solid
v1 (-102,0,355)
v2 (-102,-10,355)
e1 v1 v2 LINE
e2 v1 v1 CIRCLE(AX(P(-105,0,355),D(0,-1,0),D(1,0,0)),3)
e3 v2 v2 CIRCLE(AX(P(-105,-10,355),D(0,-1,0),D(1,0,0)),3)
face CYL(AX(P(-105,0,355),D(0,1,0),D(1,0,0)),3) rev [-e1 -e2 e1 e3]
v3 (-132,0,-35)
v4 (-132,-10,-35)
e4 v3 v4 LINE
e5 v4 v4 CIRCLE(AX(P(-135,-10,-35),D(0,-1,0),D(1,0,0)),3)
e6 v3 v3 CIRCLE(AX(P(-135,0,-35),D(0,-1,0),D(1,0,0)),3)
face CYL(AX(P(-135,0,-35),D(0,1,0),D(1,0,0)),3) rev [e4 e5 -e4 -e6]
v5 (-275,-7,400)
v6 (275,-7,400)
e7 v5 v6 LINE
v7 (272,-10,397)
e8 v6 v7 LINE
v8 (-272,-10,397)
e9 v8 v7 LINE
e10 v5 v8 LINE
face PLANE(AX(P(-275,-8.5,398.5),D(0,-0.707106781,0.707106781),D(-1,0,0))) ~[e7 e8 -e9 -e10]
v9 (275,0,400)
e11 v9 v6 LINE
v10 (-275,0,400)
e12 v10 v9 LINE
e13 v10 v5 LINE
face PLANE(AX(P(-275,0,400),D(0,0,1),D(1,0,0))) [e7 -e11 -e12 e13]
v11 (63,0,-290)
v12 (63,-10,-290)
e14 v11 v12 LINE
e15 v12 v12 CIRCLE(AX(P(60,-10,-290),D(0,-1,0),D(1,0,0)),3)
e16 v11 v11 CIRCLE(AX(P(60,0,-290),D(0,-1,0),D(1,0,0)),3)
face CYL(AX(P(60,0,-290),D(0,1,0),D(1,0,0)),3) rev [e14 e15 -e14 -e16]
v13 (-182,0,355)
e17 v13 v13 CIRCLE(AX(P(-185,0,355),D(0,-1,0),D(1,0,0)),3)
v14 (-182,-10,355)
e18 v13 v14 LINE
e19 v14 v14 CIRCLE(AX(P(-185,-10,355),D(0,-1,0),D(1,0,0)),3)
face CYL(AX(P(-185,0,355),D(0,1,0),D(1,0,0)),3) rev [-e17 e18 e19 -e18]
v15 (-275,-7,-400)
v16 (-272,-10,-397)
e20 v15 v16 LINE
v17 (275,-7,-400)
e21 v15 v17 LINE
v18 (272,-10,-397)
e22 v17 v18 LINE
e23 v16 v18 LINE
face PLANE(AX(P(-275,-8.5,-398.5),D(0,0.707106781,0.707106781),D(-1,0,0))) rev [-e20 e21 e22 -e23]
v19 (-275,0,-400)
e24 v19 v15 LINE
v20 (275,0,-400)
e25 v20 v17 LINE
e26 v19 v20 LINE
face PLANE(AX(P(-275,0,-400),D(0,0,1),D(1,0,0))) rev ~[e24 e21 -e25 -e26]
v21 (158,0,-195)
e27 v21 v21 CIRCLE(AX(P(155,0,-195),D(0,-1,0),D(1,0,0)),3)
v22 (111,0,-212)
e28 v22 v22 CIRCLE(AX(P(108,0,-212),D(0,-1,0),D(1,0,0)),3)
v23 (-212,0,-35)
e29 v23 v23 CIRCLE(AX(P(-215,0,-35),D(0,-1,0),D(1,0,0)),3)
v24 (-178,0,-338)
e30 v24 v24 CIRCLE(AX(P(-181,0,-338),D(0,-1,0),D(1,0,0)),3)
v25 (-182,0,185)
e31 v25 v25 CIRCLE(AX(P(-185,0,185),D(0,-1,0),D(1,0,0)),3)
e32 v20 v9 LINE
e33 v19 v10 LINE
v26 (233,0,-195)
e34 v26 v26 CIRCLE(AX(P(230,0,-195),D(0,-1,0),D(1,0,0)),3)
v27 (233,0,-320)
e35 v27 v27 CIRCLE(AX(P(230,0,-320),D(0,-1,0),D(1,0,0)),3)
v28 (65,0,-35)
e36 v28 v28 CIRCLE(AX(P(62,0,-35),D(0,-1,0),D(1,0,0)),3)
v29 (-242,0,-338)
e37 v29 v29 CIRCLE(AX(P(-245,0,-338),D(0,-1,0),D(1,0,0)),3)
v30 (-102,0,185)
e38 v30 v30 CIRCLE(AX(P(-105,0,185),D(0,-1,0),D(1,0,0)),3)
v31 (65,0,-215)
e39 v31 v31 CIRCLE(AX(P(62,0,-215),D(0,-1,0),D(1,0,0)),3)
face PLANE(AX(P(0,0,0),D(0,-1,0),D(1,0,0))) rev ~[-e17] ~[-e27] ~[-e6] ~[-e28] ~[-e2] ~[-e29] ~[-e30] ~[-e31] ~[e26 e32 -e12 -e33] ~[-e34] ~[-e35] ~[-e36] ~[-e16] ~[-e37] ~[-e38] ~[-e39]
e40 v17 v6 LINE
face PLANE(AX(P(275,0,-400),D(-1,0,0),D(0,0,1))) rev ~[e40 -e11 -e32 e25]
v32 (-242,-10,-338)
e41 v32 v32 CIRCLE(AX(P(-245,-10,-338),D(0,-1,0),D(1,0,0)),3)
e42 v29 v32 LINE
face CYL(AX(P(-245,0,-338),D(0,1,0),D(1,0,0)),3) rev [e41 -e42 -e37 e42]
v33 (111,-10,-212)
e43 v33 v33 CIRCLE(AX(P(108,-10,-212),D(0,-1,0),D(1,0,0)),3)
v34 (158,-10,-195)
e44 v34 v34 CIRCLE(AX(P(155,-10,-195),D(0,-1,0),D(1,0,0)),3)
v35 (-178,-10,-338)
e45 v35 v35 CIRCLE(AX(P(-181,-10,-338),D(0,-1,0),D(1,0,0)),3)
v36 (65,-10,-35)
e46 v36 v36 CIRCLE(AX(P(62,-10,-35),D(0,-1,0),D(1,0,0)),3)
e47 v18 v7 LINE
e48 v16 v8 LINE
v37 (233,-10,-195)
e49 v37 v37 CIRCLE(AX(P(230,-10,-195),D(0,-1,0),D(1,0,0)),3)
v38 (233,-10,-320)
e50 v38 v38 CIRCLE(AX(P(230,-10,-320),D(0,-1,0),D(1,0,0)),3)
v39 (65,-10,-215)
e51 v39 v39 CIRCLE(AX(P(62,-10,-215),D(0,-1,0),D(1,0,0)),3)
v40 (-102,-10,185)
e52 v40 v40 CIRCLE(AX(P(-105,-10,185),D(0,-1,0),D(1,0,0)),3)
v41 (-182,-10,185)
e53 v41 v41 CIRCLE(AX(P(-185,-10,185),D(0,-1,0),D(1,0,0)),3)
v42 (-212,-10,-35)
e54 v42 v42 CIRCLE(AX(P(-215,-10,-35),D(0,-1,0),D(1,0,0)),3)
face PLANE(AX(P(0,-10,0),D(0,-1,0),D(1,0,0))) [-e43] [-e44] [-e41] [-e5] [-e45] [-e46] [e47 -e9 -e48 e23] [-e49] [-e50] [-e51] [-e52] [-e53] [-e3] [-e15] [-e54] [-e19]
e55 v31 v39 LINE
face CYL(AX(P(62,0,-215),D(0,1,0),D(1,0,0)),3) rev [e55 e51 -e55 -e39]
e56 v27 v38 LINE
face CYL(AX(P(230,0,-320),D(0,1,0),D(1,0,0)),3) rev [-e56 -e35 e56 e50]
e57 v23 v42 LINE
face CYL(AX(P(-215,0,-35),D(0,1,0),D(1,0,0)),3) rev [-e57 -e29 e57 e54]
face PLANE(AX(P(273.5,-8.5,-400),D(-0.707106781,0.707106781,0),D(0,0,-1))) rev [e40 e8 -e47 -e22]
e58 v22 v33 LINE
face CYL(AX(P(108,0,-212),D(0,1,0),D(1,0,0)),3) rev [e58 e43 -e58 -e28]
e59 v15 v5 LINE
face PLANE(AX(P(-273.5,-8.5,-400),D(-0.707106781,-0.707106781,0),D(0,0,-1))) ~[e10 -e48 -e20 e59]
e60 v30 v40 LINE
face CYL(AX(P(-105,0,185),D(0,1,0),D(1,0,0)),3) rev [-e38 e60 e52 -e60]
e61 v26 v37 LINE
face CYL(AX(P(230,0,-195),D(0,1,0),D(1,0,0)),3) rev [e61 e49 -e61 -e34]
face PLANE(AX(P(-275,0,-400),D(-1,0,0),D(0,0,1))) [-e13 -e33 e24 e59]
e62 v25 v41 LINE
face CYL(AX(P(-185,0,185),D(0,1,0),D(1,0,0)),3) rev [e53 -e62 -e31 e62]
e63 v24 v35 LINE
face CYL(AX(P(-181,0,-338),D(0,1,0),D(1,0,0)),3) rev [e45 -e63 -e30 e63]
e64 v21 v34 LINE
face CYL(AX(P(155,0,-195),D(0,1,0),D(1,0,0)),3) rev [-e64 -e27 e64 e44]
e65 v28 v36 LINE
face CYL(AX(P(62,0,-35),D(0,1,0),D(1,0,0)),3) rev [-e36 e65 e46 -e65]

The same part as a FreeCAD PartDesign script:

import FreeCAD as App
import Part
import Sketcher
Q = App.Units.Quantity


def edges_at(feature, points):
    """Names of the edges that pass closest to the given points."""
    edges = feature.Shape.Edges
    near = lambda p: min(range(len(edges)), key=lambda i: edges[i].distToShape(Part.Vertex(*p))[0])
    return sorted({f"Edge{near(p) + 1}" for p in points})


def add_polygon(sketch, points):
    """Adds a closed chain of lines whose ends are joined by coincident constraints."""
    first, n = sketch.GeometryCount, len(points)
    for a, b in zip(points, points[1:] + points[:1]):
        sketch.addGeometry(Part.LineSegment(App.Vector(*a, 0), App.Vector(*b, 0)), False)
    for i in range(n):
        sketch.addConstraint(Sketcher.Constraint("Coincident", first + i, 2, first + (i + 1) % n, 1))

doc = App.newDocument("Part")
body = doc.addObject("PartDesign::Body", "Body")

sketch1 = body.newObject("Sketcher::SketchObject", "Sketch")
sketch1.AttachmentSupport = (doc.getObject("XZ_Plane"), [""])
sketch1.MapMode = "FlatFace"
add_polygon(sketch1, [(-275, 400), (-275, -400), (275, -400), (275, 400)])
sketch1.addGeometry(Part.Circle(App.Vector(-245, -338, 0), App.Vector(0, 0, 1), 3), False)
sketch1.addGeometry(Part.Circle(App.Vector(-181, -338, 0), App.Vector(0, 0, 1), 3), False)
sketch1.addGeometry(Part.Circle(App.Vector(-215, -35, 0), App.Vector(0, 0, 1), 3), False)
sketch1.addGeometry(Part.Circle(App.Vector(-135, -35, 0), App.Vector(0, 0, 1), 3), False)
sketch1.addGeometry(Part.Circle(App.Vector(60, -290, 0), App.Vector(0, 0, 1), 3), False)
sketch1.addGeometry(Part.Circle(App.Vector(62, -215, 0), App.Vector(0, 0, 1), 3), False)
sketch1.addGeometry(Part.Circle(App.Vector(108, -212, 0), App.Vector(0, 0, 1), 3), False)
sketch1.addGeometry(Part.Circle(App.Vector(230, -320, 0), App.Vector(0, 0, 1), 3), False)
sketch1.addGeometry(Part.Circle(App.Vector(155, -195, 0), App.Vector(0, 0, 1), 3), False)
sketch1.addGeometry(Part.Circle(App.Vector(230, -195, 0), App.Vector(0, 0, 1), 3), False)
sketch1.addGeometry(Part.Circle(App.Vector(62, -35, 0), App.Vector(0, 0, 1), 3), False)
sketch1.addGeometry(Part.Circle(App.Vector(-185, 185, 0), App.Vector(0, 0, 1), 3), False)
sketch1.addGeometry(Part.Circle(App.Vector(-185, 355, 0), App.Vector(0, 0, 1), 3), False)
sketch1.addGeometry(Part.Circle(App.Vector(-105, 185, 0), App.Vector(0, 0, 1), 3), False)
sketch1.addGeometry(Part.Circle(App.Vector(-105, 355, 0), App.Vector(0, 0, 1), 3), False)
sketch1.addConstraint([
    Sketcher.Constraint("Vertical", 0),
    Sketcher.Constraint("Horizontal", 1),
    Sketcher.Constraint("Vertical", 2),
    Sketcher.Constraint("Horizontal", 3),
    Sketcher.Constraint("Equal", 4, 5),
    Sketcher.Constraint("Equal", 5, 6),
    Sketcher.Constraint("Equal", 6, 7),
    Sketcher.Constraint("Equal", 7, 8),
    Sketcher.Constraint("Equal", 8, 9),
    Sketcher.Constraint("Equal", 9, 10),
    Sketcher.Constraint("Equal", 10, 11),
    Sketcher.Constraint("Equal", 11, 12),
    Sketcher.Constraint("Equal", 12, 13),
    Sketcher.Constraint("Equal", 13, 14),
    Sketcher.Constraint("Equal", 14, 15),
    Sketcher.Constraint("Equal", 15, 16),
    Sketcher.Constraint("Equal", 16, 17),
    Sketcher.Constraint("Equal", 17, 18),
    Sketcher.Constraint("Symmetric", 0, 2, 2, 2, -1, 1),
    Sketcher.Constraint("Horizontal", 4, 3, 5, 3),
    Sketcher.Constraint("Horizontal", 6, 3, 7, 3),
    Sketcher.Constraint("Horizontal", 12, 3, 13, 3),
    Sketcher.Constraint("Horizontal", 7, 3, 14, 3),
    Sketcher.Constraint("Horizontal", 15, 3, 17, 3),
    Sketcher.Constraint("Horizontal", 16, 3, 18, 3),
    Sketcher.Constraint("Vertical", 11, 3, 13, 3),
    Sketcher.Constraint("Vertical", 9, 3, 14, 3),
    Sketcher.Constraint("Vertical", 15, 3, 16, 3),
    Sketcher.Constraint("Vertical", 17, 3, 18, 3),
    Sketcher.Constraint("Diameter", 4, Q("6 mm")),
    Sketcher.Constraint("DistanceX", 1, 1, 1, 2, Q("550 mm")),
    Sketcher.Constraint("DistanceY", 0, 2, 0, 1, Q("800 mm")),
    Sketcher.Constraint("DistanceX", 4, 3, -1, 1, Q("245 mm")),
    Sketcher.Constraint("DistanceY", 4, 3, -1, 1, Q("338 mm")),
    Sketcher.Constraint("DistanceX", 5, 3, -1, 1, Q("181 mm")),
    Sketcher.Constraint("DistanceX", 6, 3, -1, 1, Q("215 mm")),
    Sketcher.Constraint("DistanceY", 6, 3, -1, 1, Q("35 mm")),
    Sketcher.Constraint("DistanceX", 7, 3, -1, 1, Q("135 mm")),
    Sketcher.Constraint("DistanceX", -1, 1, 8, 3, Q("60 mm")),
    Sketcher.Constraint("DistanceY", 8, 3, -1, 1, Q("290 mm")),
    Sketcher.Constraint("DistanceX", -1, 1, 9, 3, Q("62 mm")),
    Sketcher.Constraint("DistanceY", 9, 3, -1, 1, Q("215 mm")),
    Sketcher.Constraint("DistanceX", -1, 1, 10, 3, Q("108 mm")),
    Sketcher.Constraint("DistanceY", 10, 3, -1, 1, Q("212 mm")),
    Sketcher.Constraint("DistanceX", -1, 1, 11, 3, Q("230 mm")),
    Sketcher.Constraint("DistanceY", 11, 3, -1, 1, Q("320 mm")),
    Sketcher.Constraint("DistanceX", -1, 1, 12, 3, Q("155 mm")),
    Sketcher.Constraint("DistanceY", 12, 3, -1, 1, Q("195 mm")),
    Sketcher.Constraint("DistanceX", 15, 3, -1, 1, Q("185 mm")),
    Sketcher.Constraint("DistanceY", -1, 1, 15, 3, Q("185 mm")),
    Sketcher.Constraint("DistanceY", -1, 1, 16, 3, Q("355 mm")),
    Sketcher.Constraint("DistanceX", 17, 3, -1, 1, Q("105 mm")),
])
pad1 = body.newObject("PartDesign::Pad", "Pad")
pad1.Profile = sketch1
pad1.Length = 10
doc.recompute()

chamfer = body.newObject("PartDesign::Chamfer", "Chamfer")
chamfer.Base = (pad1, edges_at(pad1, [
    (-275, -10, 0),
    (0, -10, 400),
    (275, -10, 0),
    (0, -10, -400),
]))
chamfer.Size = 3

doc.recompute()
